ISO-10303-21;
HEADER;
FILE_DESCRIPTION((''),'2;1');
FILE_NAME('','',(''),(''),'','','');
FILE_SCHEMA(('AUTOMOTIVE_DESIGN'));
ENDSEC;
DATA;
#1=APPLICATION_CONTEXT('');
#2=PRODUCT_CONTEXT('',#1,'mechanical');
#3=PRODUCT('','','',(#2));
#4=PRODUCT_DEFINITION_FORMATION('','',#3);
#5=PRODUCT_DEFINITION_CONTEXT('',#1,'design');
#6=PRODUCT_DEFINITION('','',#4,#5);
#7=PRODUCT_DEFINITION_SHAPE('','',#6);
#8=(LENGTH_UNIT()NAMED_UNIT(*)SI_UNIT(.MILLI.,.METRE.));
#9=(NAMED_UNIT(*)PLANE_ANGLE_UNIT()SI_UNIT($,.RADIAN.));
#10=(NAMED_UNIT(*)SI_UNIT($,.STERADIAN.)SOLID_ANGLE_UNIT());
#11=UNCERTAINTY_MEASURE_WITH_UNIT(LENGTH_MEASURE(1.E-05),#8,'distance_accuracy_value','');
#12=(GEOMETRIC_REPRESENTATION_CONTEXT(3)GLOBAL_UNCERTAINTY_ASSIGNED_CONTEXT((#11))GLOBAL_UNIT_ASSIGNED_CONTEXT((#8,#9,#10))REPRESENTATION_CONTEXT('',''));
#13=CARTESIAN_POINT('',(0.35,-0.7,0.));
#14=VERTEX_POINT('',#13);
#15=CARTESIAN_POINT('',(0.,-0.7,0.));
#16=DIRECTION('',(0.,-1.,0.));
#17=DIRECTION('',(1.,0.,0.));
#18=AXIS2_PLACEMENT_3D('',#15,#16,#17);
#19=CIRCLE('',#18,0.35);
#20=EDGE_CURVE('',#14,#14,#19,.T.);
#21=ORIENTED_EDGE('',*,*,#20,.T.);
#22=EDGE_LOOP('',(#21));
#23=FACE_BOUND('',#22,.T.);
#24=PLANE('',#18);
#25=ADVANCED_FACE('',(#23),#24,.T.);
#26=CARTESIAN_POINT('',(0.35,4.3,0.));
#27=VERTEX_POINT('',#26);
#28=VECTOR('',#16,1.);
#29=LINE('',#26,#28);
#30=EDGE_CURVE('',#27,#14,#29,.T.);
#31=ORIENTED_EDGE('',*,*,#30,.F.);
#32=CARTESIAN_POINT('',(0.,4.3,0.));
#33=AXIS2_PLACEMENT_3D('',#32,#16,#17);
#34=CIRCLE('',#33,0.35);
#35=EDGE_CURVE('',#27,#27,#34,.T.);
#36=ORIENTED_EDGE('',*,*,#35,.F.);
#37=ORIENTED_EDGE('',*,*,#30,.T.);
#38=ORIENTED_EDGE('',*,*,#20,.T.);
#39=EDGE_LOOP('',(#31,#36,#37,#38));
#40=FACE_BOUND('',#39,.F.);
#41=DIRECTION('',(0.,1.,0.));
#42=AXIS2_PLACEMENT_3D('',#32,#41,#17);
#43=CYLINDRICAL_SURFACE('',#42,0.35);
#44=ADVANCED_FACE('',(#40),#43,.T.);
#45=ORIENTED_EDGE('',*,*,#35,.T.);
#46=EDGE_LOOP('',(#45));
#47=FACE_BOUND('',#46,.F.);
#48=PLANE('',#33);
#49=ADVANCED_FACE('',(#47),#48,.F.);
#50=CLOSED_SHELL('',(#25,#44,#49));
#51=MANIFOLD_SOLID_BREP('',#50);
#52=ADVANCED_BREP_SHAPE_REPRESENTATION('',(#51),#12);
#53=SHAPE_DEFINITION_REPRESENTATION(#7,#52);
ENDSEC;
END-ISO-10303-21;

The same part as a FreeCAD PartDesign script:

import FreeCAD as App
import Part
import Sketcher
Q = App.Units.Quantity

doc = App.newDocument("Part")
body = doc.addObject("PartDesign::Body", "Body")

sketch1 = body.newObject("Sketcher::SketchObject", "Sketch")
sketch1.AttachmentSupport = (doc.getObject("XZ_Plane"), [""])
sketch1.MapMode = "FlatFace"
sketch1.AttachmentOffset = App.Placement(App.Vector(0, 0, -4.3), App.Rotation())
sketch1.addGeometry(Part.Circle(App.Vector(0, 0, 0), App.Vector(0, 0, 1), 0.35), False)
sketch1.addConstraint([
    Sketcher.Constraint("Coincident", 0, 3, -1, 1),
    Sketcher.Constraint("Diameter", 0, Q("0.7 mm")),
])
pad1 = body.newObject("PartDesign::Pad", "Pad")
pad1.Profile = sketch1
pad1.Length = 5

doc.recompute()
